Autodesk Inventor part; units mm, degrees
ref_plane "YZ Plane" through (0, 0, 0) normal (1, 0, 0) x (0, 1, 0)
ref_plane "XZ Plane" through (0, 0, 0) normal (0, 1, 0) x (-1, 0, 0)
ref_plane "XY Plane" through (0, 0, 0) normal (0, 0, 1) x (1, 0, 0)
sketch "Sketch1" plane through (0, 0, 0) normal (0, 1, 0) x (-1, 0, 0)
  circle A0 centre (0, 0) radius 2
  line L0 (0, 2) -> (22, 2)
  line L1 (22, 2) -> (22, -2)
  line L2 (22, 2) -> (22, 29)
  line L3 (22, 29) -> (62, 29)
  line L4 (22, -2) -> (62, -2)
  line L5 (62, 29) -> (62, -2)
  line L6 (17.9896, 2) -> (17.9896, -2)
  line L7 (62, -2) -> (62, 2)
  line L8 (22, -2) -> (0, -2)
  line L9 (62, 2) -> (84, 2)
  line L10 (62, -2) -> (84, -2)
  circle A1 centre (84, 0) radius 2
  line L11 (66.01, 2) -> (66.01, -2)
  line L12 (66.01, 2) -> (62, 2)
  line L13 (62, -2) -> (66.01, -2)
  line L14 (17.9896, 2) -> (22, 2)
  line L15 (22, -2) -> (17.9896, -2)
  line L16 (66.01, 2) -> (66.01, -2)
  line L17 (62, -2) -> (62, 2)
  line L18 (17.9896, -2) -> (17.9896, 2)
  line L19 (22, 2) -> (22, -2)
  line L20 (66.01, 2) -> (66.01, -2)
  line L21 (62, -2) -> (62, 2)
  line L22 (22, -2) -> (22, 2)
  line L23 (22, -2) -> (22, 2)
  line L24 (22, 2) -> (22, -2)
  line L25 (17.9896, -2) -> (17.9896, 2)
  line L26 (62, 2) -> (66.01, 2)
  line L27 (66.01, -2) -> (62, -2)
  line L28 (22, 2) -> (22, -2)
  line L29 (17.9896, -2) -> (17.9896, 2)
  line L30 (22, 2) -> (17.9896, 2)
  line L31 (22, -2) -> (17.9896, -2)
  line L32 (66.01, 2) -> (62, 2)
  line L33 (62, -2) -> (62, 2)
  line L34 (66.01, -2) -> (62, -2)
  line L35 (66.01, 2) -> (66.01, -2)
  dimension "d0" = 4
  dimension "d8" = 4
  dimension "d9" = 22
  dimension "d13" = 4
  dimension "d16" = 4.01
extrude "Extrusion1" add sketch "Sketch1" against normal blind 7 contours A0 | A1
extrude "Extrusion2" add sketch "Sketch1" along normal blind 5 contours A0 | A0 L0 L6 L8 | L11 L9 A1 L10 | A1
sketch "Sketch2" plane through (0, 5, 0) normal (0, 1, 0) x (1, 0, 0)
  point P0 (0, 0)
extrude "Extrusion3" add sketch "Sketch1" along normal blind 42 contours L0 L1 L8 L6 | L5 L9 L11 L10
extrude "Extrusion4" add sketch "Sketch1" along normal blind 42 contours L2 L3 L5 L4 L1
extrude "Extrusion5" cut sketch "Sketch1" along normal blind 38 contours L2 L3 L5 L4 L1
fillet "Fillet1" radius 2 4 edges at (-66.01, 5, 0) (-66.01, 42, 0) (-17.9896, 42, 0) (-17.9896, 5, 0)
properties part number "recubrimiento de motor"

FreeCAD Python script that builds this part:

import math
import FreeCAD as App
import Part
import Sketcher
from FreeCAD import Vector
Q = App.Units.Quantity


def edges_at(feature, points):
    """Names of the edges that pass closest to the given points."""
    edges = feature.Shape.Edges
    near = lambda p: min(range(len(edges)), key=lambda i: edges[i].distToShape(Part.Vertex(*p))[0])
    return sorted({f"Edge{near(p) + 1}" for p in points})


def add_polygon(sketch, points):
    """Adds a closed chain of lines whose ends are joined by coincident constraints."""
    first, n = sketch.GeometryCount, len(points)
    for a, b in zip(points, points[1:] + points[:1]):
        sketch.addGeometry(Part.LineSegment(App.Vector(*a, 0), App.Vector(*b, 0)), False)
    for i in range(n):
        sketch.addConstraint(Sketcher.Constraint("Coincident", first + i, 2, first + (i + 1) % n, 1))

doc = App.newDocument("Part")
params = doc.addObject("Spreadsheet::Sheet", "Params")
for row, (alias, value) in enumerate([
    ("sketch1_diameter", "4 mm"),
    ("pad1_length", "7 mm"),
    ("sketch2_radius", "2 mm"),
    ("sketch2_width", "17.99 mm"),
    ("pad2_length", "5 mm"),
    ("sketch3_height", "4 mm"),
    ("sketch3_width", "4.01 mm"),
    ("pad3_length", "42 mm"),
    ("sketch4_width", "40 mm"),
    ("sketch4_height", "31 mm"),
    ("pad4_length", "42 mm"),
    ("sketch5_width", "40 mm"),
    ("sketch5_height", "31 mm"),
    ("pocket1_length", "38 mm"),
    ("fillet_radius", "2 mm"),
], start=1):
    params.set(f"A{row}", alias)
    params.set(f"B{row}", "=" + value)
    params.setAlias(f"B{row}", alias)

body = doc.addObject("PartDesign::Body", "Body")
body.AllowCompound = True

sketch1 = doc.addObject("Sketcher::SketchObject", "Sketch")
body.addObject(sketch1)
sketch1.AttachmentSupport = (doc.XZ_Plane, [""])
sketch1.MapMode = "FlatFace"
sketch1.addGeometry(Part.Circle(Vector(0, 0, 0), Vector(0, 0, 1), 2), False)
sketch1.addGeometry(Part.Circle(Vector(-84, 0, 0), Vector(0, 0, 1), 2), False)
sketch1.addConstraint(Sketcher.Constraint("Coincident", 0, 3, -1, 1))
sketch1.addConstraint(Sketcher.Constraint("Equal", 0, 1))
sketch1.addConstraint(Sketcher.Constraint("PointOnObject", 1, 3, -1))
sketch1.addConstraint(Sketcher.Constraint("Diameter", 0, Q("4 mm")))
sketch1.addConstraint(Sketcher.Constraint("DistanceX", 1, 3, -1, 1, Q("84 mm")))
sketch1.setExpression("Constraints[3]", "Params.sketch1_diameter")
pad1 = doc.addObject("PartDesign::Pad", "Pad")
body.addObject(pad1)
pad1.Profile = sketch1
pad1.setExpression("Length", "Params.pad1_length")

sketch2 = doc.addObject("Sketcher::SketchObject", "Sketch001")
body.addObject(sketch2)
sketch2.AttachmentSupport = (doc.XZ_Plane, [""])
sketch2.MapMode = "FlatFace"
sketch2.addGeometry(Part.ArcOfCircle(Part.Circle(Vector(0, 0, 0), Vector(0, 0, 1), 2), math.radians(-90), math.radians(90)), False)
sketch2.addGeometry(Part.LineSegment(Vector(0, -2, 0), Vector(-18, -2, 0)), False)
sketch2.addGeometry(Part.LineSegment(Vector(-18, -2, 0), Vector(-18, 2, 0)), False)
sketch2.addGeometry(Part.LineSegment(Vector(-18, 2, 0), Vector(0, 2, 0)), False)
sketch2.addGeometry(Part.LineSegment(Vector(-66, 2, 0), Vector(-66, -2, 0)), False)
sketch2.addGeometry(Part.LineSegment(Vector(-66, -2, 0), Vector(-84, -2, 0)), False)
sketch2.addGeometry(Part.ArcOfCircle(Part.Circle(Vector(-84, 0, 0), Vector(0, 0, 1), 2), math.radians(90), math.radians(270)), False)
sketch2.addGeometry(Part.LineSegment(Vector(-84, 2, 0), Vector(-66, 2, 0)), False)
sketch2.addConstraint(Sketcher.Constraint("Tangent", 0, 1, 1, 1))
sketch2.addConstraint(Sketcher.Constraint("Coincident", 1, 2, 2, 1))
sketch2.addConstraint(Sketcher.Constraint("Coincident", 2, 2, 3, 1))
sketch2.addConstraint(Sketcher.Constraint("Tangent", 3, 2, 0, 2))
sketch2.addConstraint(Sketcher.Constraint("Coincident", 4, 2, 5, 1))
sketch2.addConstraint(Sketcher.Constraint("Tangent", 5, 2, 6, 2))
sketch2.addConstraint(Sketcher.Constraint("Tangent", 6, 1, 7, 1))
sketch2.addConstraint(Sketcher.Constraint("Coincident", 7, 2, 4, 1))
sketch2.addConstraint(Sketcher.Constraint("Horizontal", 1))
sketch2.addConstraint(Sketcher.Constraint("Vertical", 2))
sketch2.addConstraint(Sketcher.Constraint("Horizontal", 3))
sketch2.addConstraint(Sketcher.Constraint("Vertical", 4))
sketch2.addConstraint(Sketcher.Constraint("Horizontal", 5))
sketch2.addConstraint(Sketcher.Constraint("Horizontal", 7))
sketch2.addConstraint(Sketcher.Constraint("Coincident", 0, 3, -1, 1))
sketch2.addConstraint(Sketcher.Constraint("Equal", 0, 6))
sketch2.addConstraint(Sketcher.Constraint("PointOnObject", 6, 3, -1))
sketch2.addConstraint(Sketcher.Constraint("Radius", 0, Q("2 mm")))
sketch2.addConstraint(Sketcher.Constraint("DistanceX", 6, 3, -1, 1, Q("84 mm")))
sketch2.addConstraint(Sketcher.Constraint("DistanceX", 5, 2, 5, 1, Q("17.99 mm")))
sketch2.addConstraint(Sketcher.Constraint("DistanceX", 1, 2, 1, 1, Q("17.9896 mm")))
sketch2.setExpression("Constraints[17]", "Params.sketch2_radius")
sketch2.setExpression("Constraints[19]", "Params.sketch2_width")
pad2 = doc.addObject("PartDesign::Pad", "Pad001")
body.addObject(pad2)
pad2.Profile = sketch2
pad2.setExpression("Length", "Params.pad2_length")
pad2.Reversed = True

sketch3 = doc.addObject("Sketcher::SketchObject", "Sketch002")
body.addObject(sketch3)
sketch3.AttachmentSupport = (doc.XZ_Plane, [""])
sketch3.MapMode = "FlatFace"
add_polygon(sketch3, [(-22, 2), (-18, 2), (-18, -2), (-22, -2)])
add_polygon(sketch3, [(-62, 2), (-62, -2), (-66, -2), (-66, 2)])
sketch3.addConstraint(Sketcher.Constraint("Horizontal", 0))
sketch3.addConstraint(Sketcher.Constraint("Vertical", 1))
sketch3.addConstraint(Sketcher.Constraint("Horizontal", 2))
sketch3.addConstraint(Sketcher.Constraint("Vertical", 3))
sketch3.addConstraint(Sketcher.Constraint("Vertical", 4))
sketch3.addConstraint(Sketcher.Constraint("Horizontal", 5))
sketch3.addConstraint(Sketcher.Constraint("Vertical", 6))
sketch3.addConstraint(Sketcher.Constraint("Horizontal", 7))
sketch3.addConstraint(Sketcher.Constraint("Horizontal", 2, 2, 4, 2))
sketch3.addConstraint(Sketcher.Constraint("Horizontal", 3, 2, 6, 2))
sketch3.addConstraint(Sketcher.Constraint("DistanceY", 1, 2, 1, 1, Q("4 mm")))
sketch3.addConstraint(Sketcher.Constraint("DistanceX", 2, 2, -1, 1, Q("22 mm")))
sketch3.addConstraint(Sketcher.Constraint("DistanceX", 5, 2, 5, 1, Q("4.01 mm")))
sketch3.addConstraint(Sketcher.Constraint("DistanceX", 0, 1, 0, 2, Q("4.0104 mm")))
sketch3.addConstraint(Sketcher.Constraint("DistanceY", -1, 1, 0, 2, Q("2 mm")))
sketch3.addConstraint(Sketcher.Constraint("DistanceX", 4, 2, -1, 1, Q("62 mm")))
sketch3.setExpression("Constraints[18]", "Params.sketch3_height")
sketch3.setExpression("Constraints[20]", "Params.sketch3_width")
pad3 = doc.addObject("PartDesign::Pad", "Pad002")
body.addObject(pad3)
pad3.Profile = sketch3
pad3.setExpression("Length", "Params.pad3_length")
pad3.Reversed = True

sketch4 = doc.addObject("Sketcher::SketchObject", "Sketch003")
body.addObject(sketch4)
sketch4.AttachmentSupport = (doc.XZ_Plane, [""])
sketch4.MapMode = "FlatFace"
add_polygon(sketch4, [(-22, 29), (-22, -2), (-62, -2), (-62, 29)])
sketch4.addConstraint(Sketcher.Constraint("Vertical", 0))
sketch4.addConstraint(Sketcher.Constraint("Horizontal", 1))
sketch4.addConstraint(Sketcher.Constraint("Vertical", 2))
sketch4.addConstraint(Sketcher.Constraint("Horizontal", 3))
sketch4.addConstraint(Sketcher.Constraint("DistanceX", 0, 2, -1, 1, Q("22 mm")))
sketch4.addConstraint(Sketcher.Constraint("DistanceX", 1, 2, 1, 1, Q("40 mm")))
sketch4.addConstraint(Sketcher.Constraint("DistanceY", 0, 2, 0, 1, Q("31 mm")))
sketch4.addConstraint(Sketcher.Constraint("DistanceY", 0, 2, -1, 1, Q("2 mm")))
sketch4.setExpression("Constraints[9]", "Params.sketch4_width")
sketch4.setExpression("Constraints[10]", "Params.sketch4_height")
pad4 = doc.addObject("PartDesign::Pad", "Pad003")
body.addObject(pad4)
pad4.Profile = sketch4
pad4.setExpression("Length", "Params.pad4_length")
pad4.Reversed = True

sketch5 = doc.addObject("Sketcher::SketchObject", "Sketch004")
body.addObject(sketch5)
sketch5.AttachmentSupport = (doc.XZ_Plane, [""])
sketch5.MapMode = "FlatFace"
add_polygon(sketch5, [(-22, 29), (-22, -2), (-62, -2), (-62, 29)])
sketch5.addConstraint(Sketcher.Constraint("Vertical", 0))
sketch5.addConstraint(Sketcher.Constraint("Horizontal", 1))
sketch5.addConstraint(Sketcher.Constraint("Vertical", 2))
sketch5.addConstraint(Sketcher.Constraint("Horizontal", 3))
sketch5.addConstraint(Sketcher.Constraint("DistanceX", 0, 2, -1, 1, Q("22 mm")))
sketch5.addConstraint(Sketcher.Constraint("DistanceX", 1, 2, 1, 1, Q("40 mm")))
sketch5.addConstraint(Sketcher.Constraint("DistanceY", 0, 2, 0, 1, Q("31 mm")))
sketch5.addConstraint(Sketcher.Constraint("DistanceY", 0, 2, -1, 1, Q("2 mm")))
sketch5.setExpression("Constraints[9]", "Params.sketch5_width")
sketch5.setExpression("Constraints[10]", "Params.sketch5_height")
pocket1 = doc.addObject("PartDesign::Pocket", "Pocket")
body.addObject(pocket1)
pocket1.Profile = sketch5
pocket1.setExpression("Length", "Params.pocket1_length")
doc.recompute()

fillet = doc.addObject("PartDesign::Fillet", "Fillet")
body.addObject(fillet)
fillet.Base = (pocket1, edges_at(pocket1, [
    (-66.01, 5, 0),
    (-66.01, 42, 0),
    (-17.99, 42, 0),
    (-17.99, 5, 0),
]))
fillet.setExpression("Radius", "Params.fillet_radius")

doc.recompute()
